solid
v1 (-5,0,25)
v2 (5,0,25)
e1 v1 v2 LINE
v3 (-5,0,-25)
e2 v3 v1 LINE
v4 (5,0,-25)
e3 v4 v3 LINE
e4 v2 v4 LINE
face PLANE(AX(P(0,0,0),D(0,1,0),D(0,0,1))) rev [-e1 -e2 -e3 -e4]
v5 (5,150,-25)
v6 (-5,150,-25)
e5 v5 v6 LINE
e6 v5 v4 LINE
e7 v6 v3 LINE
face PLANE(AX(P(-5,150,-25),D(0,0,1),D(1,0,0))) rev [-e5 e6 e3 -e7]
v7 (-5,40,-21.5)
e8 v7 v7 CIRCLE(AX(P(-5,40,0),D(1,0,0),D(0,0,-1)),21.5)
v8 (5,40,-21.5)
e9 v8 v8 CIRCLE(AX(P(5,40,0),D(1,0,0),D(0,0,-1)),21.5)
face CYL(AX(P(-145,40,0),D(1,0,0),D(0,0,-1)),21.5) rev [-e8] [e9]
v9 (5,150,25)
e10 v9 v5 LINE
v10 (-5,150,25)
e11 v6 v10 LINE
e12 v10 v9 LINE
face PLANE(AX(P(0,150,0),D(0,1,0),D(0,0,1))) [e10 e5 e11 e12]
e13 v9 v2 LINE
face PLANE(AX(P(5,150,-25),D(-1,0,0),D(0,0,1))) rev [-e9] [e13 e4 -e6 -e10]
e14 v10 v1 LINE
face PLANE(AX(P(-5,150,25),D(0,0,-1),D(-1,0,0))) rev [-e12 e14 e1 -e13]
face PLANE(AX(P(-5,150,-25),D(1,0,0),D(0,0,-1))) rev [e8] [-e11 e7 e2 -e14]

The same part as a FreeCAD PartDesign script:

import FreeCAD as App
import Part
import Sketcher

V = App.Vector


def add_polygon(sketch, points):
    """Adds a closed chain of lines whose ends are joined by coincident constraints."""
    first, n = sketch.GeometryCount, len(points)
    for a, b in zip(points, points[1:] + points[:1]):
        sketch.addGeometry(Part.LineSegment(App.Vector(*a, 0), App.Vector(*b, 0)), False)
    for i in range(n):
        sketch.addConstraint(Sketcher.Constraint("Coincident", first + i, 2, first + (i + 1) % n, 1))

doc = App.newDocument("Part")
params = doc.addObject("Spreadsheet::Sheet", "Params")
for row, (alias, value) in enumerate([
    ("sketch1_width", "10 mm"),
    ("sketch1_height", "50 mm"),
    ("pad1_length", "150 mm"),
    ("sketch2_diameter", "43 mm"),
    ("pocket1_length", "150 mm"),
], start=1):
    params.set(f"A{row}", alias)
    params.set(f"B{row}", "=" + value)
    params.setAlias(f"B{row}", alias)

body = doc.addObject("PartDesign::Body", "Body")

# Sketch on XZ plane
sketch1 = body.newObject("Sketcher::SketchObject", "Sketch")
sketch1.AttachmentSupport = (doc.getObject("XZ_Plane"), [""])
sketch1.MapMode = "FlatFace"
add_polygon(sketch1, [(-5, -25), (-5, 25), (5, 25), (5, -25)])  # lines 0-3
sketch1.addConstraint([
    Sketcher.Constraint("Vertical", 0),
    Sketcher.Constraint("Horizontal", 1),
    Sketcher.Constraint("Vertical", 2),
    Sketcher.Constraint("Horizontal", 3),
    Sketcher.Constraint("Symmetric", 0, 2, 2, 2, -1, 1),
    Sketcher.Constraint("DistanceX", 1, 1, 1, 2, 10.0),
    Sketcher.Constraint("DistanceY", 0, 1, 0, 2, 50.0),
])
sketch1.setExpression("Constraints[9]", "Params.sketch1_width")
sketch1.setExpression("Constraints[10]", "Params.sketch1_height")
pad1 = body.newObject("PartDesign::Pad", "Pad")
pad1.Profile = sketch1
pad1.setExpression("Length", "Params.pad1_length")
pad1.Reversed = True

# Sketch on YZ plane
sketch2 = body.newObject("Sketcher::SketchObject", "Sketch001")
sketch2.AttachmentSupport = (doc.getObject("YZ_Plane"), [""])
sketch2.MapMode = "FlatFace"
sketch2.AttachmentOffset = App.Placement(V(0, 0, 5), App.Rotation())
sketch2.addGeometry(Part.Circle(V(40, 0, 0), V(0, 0, 1), 22), False)
sketch2.addConstraint([
    Sketcher.Constraint("PointOnObject", 0, 3, -1),
    Sketcher.Constraint("Diameter", 0, 43.0),
    Sketcher.Constraint("DistanceX", -1, 1, 0, 3, 40.0),
])
sketch2.setExpression("Constraints[1]", "Params.sketch2_diameter")
pocket1 = body.newObject("PartDesign::Pocket", "Pocket")
pocket1.Profile = sketch2
pocket1.setExpression("Length", "Params.pocket1_length")

doc.recompute()
